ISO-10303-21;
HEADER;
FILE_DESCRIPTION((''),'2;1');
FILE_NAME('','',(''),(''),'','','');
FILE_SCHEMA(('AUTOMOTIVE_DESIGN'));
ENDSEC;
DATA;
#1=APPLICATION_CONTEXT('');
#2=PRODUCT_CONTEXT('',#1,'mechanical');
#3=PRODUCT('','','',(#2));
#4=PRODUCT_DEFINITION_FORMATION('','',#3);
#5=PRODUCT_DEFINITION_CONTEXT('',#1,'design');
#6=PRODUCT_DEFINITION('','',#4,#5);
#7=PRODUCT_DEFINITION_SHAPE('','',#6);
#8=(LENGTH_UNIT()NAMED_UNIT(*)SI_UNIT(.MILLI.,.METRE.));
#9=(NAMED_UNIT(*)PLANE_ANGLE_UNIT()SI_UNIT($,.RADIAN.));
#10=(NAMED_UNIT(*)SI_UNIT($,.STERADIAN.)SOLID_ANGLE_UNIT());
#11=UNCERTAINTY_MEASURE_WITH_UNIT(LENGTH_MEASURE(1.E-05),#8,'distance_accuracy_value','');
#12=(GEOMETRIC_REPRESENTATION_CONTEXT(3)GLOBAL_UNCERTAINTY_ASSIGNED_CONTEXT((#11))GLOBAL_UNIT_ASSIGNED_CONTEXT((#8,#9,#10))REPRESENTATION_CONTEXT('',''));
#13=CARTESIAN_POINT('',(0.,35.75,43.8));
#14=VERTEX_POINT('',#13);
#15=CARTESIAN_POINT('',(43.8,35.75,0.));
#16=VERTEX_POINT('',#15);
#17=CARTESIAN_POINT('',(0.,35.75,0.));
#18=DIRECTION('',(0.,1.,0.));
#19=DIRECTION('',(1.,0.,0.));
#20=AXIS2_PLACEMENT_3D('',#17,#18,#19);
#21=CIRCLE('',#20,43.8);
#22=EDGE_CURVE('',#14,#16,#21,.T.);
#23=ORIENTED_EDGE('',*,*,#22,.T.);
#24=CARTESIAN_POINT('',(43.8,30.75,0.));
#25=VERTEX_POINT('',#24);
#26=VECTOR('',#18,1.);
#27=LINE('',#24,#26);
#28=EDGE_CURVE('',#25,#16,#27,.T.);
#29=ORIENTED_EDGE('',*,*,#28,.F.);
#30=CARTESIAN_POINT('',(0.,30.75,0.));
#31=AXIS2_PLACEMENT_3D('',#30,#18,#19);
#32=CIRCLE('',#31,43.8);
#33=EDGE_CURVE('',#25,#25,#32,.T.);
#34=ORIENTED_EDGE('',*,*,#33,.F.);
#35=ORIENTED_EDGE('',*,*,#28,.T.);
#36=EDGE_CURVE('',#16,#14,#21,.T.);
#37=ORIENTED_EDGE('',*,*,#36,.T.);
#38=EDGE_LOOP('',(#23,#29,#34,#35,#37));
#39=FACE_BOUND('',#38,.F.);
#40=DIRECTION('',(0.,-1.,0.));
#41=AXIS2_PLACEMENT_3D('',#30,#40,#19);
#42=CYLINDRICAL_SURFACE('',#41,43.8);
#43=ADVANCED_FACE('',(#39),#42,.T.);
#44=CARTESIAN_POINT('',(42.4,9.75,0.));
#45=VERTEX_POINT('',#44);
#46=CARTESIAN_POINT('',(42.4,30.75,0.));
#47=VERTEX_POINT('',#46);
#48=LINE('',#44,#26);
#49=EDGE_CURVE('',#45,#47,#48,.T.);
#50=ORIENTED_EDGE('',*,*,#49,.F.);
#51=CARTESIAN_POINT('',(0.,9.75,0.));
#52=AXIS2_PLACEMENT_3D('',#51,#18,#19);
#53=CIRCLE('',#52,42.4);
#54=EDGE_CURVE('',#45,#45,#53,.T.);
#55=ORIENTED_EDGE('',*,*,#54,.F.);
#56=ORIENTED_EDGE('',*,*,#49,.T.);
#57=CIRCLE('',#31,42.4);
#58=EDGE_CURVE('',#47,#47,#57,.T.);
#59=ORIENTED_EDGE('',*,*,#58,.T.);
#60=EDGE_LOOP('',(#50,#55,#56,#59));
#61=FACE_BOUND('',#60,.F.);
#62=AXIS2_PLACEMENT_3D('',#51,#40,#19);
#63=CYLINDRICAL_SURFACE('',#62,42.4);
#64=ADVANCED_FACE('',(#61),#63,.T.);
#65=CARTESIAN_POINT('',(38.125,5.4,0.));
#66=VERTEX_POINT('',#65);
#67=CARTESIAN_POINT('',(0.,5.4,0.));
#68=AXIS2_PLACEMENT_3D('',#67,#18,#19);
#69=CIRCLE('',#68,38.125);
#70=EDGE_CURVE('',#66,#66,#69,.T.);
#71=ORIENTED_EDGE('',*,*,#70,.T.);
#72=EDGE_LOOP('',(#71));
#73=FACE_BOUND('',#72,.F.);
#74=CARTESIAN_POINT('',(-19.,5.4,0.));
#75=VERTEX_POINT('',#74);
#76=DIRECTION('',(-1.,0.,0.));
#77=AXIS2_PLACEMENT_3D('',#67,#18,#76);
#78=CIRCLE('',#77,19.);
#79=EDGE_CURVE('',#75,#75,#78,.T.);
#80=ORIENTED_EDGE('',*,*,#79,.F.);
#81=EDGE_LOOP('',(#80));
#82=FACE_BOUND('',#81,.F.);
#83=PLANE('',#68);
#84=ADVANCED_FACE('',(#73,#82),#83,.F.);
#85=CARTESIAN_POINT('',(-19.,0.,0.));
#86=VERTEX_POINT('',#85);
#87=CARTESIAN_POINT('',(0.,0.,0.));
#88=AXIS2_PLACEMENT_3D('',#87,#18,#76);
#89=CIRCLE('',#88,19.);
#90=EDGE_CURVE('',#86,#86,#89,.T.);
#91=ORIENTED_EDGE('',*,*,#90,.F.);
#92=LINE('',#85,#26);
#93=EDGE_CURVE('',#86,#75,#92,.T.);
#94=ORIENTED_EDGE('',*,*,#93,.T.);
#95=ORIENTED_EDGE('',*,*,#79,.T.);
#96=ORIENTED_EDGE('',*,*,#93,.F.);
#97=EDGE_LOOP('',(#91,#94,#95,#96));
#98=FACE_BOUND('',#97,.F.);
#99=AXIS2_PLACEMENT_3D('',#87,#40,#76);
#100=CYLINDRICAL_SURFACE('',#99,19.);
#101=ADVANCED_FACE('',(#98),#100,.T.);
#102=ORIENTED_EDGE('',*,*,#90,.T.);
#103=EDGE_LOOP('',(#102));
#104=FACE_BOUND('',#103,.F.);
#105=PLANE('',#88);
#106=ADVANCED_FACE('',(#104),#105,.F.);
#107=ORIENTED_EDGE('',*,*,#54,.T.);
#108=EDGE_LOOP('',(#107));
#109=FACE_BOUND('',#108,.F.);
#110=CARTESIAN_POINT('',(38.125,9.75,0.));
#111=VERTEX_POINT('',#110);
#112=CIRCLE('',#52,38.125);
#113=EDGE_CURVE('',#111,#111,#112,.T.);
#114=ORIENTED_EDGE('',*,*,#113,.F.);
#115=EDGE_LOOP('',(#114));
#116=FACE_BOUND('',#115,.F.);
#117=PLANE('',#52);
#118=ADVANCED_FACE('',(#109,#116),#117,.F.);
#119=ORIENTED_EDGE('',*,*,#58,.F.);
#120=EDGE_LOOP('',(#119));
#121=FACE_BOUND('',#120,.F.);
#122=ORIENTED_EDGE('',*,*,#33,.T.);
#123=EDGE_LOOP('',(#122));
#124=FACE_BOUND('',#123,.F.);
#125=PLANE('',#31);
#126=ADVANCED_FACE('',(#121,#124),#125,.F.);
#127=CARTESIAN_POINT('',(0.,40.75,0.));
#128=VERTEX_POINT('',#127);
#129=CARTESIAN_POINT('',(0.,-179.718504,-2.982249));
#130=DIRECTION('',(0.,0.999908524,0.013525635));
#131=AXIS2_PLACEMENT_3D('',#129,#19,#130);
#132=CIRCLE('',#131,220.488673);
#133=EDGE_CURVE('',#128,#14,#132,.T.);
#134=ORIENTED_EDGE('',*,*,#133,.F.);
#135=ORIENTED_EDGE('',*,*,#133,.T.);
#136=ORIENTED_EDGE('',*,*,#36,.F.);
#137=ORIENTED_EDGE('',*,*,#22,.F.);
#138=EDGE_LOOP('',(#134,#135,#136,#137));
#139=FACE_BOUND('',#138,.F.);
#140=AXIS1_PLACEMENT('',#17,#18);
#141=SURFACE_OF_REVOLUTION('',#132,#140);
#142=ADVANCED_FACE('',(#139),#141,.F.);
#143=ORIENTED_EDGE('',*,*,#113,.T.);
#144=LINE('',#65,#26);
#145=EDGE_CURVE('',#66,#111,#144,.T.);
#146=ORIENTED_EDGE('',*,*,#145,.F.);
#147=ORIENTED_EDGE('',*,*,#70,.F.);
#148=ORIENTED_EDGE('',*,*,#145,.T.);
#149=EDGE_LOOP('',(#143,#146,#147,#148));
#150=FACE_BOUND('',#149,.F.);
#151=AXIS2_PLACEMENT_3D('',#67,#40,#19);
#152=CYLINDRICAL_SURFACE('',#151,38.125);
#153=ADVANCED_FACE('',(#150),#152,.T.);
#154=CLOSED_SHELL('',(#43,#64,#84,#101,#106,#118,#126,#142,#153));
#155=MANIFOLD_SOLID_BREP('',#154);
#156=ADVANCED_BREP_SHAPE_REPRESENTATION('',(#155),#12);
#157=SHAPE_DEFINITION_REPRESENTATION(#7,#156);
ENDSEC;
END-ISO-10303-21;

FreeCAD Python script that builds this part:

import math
import FreeCAD as App
import Part
import Sketcher
from FreeCAD import Vector
Q = App.Units.Quantity

doc = App.newDocument("Part")
params = doc.addObject("Spreadsheet::Sheet", "Params")
for row, (alias, value) in enumerate([
    ("sketch1_diameter", "38 mm"),
    ("pad1_length", "5.4 mm"),
    ("sketch2_diameter", "76.25 mm"),
    ("pad2_length", "4.35 mm"),
    ("sketch3_diameter", "84.8 mm"),
    ("pad3_length", "21 mm"),
    ("sketch4_diameter", "87.6 mm"),
    ("pad4_length", "5 mm"),
    ("sketch5_width", "5 mm"),
    ("sketch5_height", "43.8 mm"),
    ("revolution_angle", "360 deg"),
], start=1):
    params.set(f"A{row}", alias)
    params.set(f"B{row}", "=" + value)
    params.setAlias(f"B{row}", alias)

body = doc.addObject("PartDesign::Body", "Body")

# Sketch on XZ plane
sketch1 = body.newObject("Sketcher::SketchObject", "Sketch")
sketch1.AttachmentSupport = (doc.getObject("XZ_Plane"), [""])
sketch1.MapMode = "FlatFace"
sketch1.addGeometry(Part.Circle(Vector(0, 0, 0), Vector(0, 0, 1), 19), False)
sketch1.addConstraint([
    Sketcher.Constraint("Coincident", 0, 3, -1, 1),
    Sketcher.Constraint("Diameter", 0, Q("38 mm")),
])
sketch1.setExpression("Constraints[1]", "Params.sketch1_diameter")
pad1 = body.newObject("PartDesign::Pad", "Pad")
pad1.Profile = sketch1
pad1.setExpression("Length", "Params.pad1_length")
pad1.Reversed = True

# Sketch on XZ plane
sketch2 = body.newObject("Sketcher::SketchObject", "Sketch001")
sketch2.AttachmentSupport = (doc.getObject("XZ_Plane"), [""])
sketch2.MapMode = "FlatFace"
sketch2.AttachmentOffset = App.Placement(Vector(0, 0, -5.4), App.Rotation())
sketch2.addGeometry(Part.Circle(Vector(0, 0, 0), Vector(0, 0, 1), 38), False)
sketch2.addConstraint([
    Sketcher.Constraint("Coincident", 0, 3, -1, 1),
    Sketcher.Constraint("Diameter", 0, Q("76.25 mm")),
])
sketch2.setExpression("Constraints[1]", "Params.sketch2_diameter")
pad2 = body.newObject("PartDesign::Pad", "Pad001")
pad2.Profile = sketch2
pad2.setExpression("Length", "Params.pad2_length")
pad2.Reversed = True

# Sketch on XZ plane
sketch3 = body.newObject("Sketcher::SketchObject", "Sketch002")
sketch3.AttachmentSupport = (doc.getObject("XZ_Plane"), [""])
sketch3.MapMode = "FlatFace"
sketch3.AttachmentOffset = App.Placement(Vector(0, 0, -9.75), App.Rotation())
sketch3.addGeometry(Part.Circle(Vector(0, 0, 0), Vector(0, 0, 1), 42), False)
sketch3.addConstraint([
    Sketcher.Constraint("Coincident", 0, 3, -1, 1),
    Sketcher.Constraint("Diameter", 0, Q("84.8 mm")),
])
sketch3.setExpression("Constraints[1]", "Params.sketch3_diameter")
pad3 = body.newObject("PartDesign::Pad", "Pad002")
pad3.Profile = sketch3
pad3.setExpression("Length", "Params.pad3_length")
pad3.Reversed = True

# Sketch on XZ plane
sketch4 = body.newObject("Sketcher::SketchObject", "Sketch003")
sketch4.AttachmentSupport = (doc.getObject("XZ_Plane"), [""])
sketch4.MapMode = "FlatFace"
sketch4.AttachmentOffset = App.Placement(Vector(0, 0, -30.75), App.Rotation())
sketch4.addGeometry(Part.Circle(Vector(0, 0, 0), Vector(0, 0, 1), 44), False)
sketch4.addConstraint([
    Sketcher.Constraint("Coincident", 0, 3, -1, 1),
    Sketcher.Constraint("Diameter", 0, Q("87.6 mm")),
])
sketch4.setExpression("Constraints[1]", "Params.sketch4_diameter")
pad4 = body.newObject("PartDesign::Pad", "Pad003")
pad4.Profile = sketch4
pad4.setExpression("Length", "Params.pad4_length")
pad4.Reversed = True

# Sketch on YZ plane
sketch5 = body.newObject("Sketcher::SketchObject", "Sketch004")
sketch5.AttachmentSupport = (doc.getObject("YZ_Plane"), [""])
sketch5.MapMode = "FlatFace"
sketch5.addGeometry([
    Part.LineSegment(Vector(36, 44, 0), Vector(36, 0, 0)),
    Part.LineSegment(Vector(36, 0, 0), Vector(41, 0, 0)),
    Part.ArcOfCircle(Part.Circle(Vector(-180, -3, 0), Vector(0, 0, 1), 220), math.radians(0.77), math.radians(12.25)),
], False)
sketch5.addConstraint([
    Sketcher.Constraint("Coincident", 0, 2, 1, 1),
    Sketcher.Constraint("Coincident", 1, 2, 2, 1),
    Sketcher.Constraint("Coincident", 2, 2, 0, 1),
    Sketcher.Constraint("Vertical", 0),
    Sketcher.Constraint("Horizontal", 1),
    Sketcher.Constraint("PointOnObject", 0, 2, -1),
    Sketcher.Constraint("DistanceX", 1, 1, 1, 2, Q("5 mm")),
    Sketcher.Constraint("DistanceY", 0, 2, 0, 1, Q("43.8 mm")),
    Sketcher.Constraint("Radius", 2, Q("220.4895 mm")),
    Sketcher.Constraint("DistanceX", -1, 1, 0, 2, Q("35.75 mm")),
])
sketch5.setExpression("Constraints[6]", "Params.sketch5_width")
sketch5.setExpression("Constraints[7]", "Params.sketch5_height")
revolution = body.newObject("PartDesign::Revolution", "Revolution")
revolution.Profile = sketch5
revolution.ReferenceAxis = (sketch5, ["H_Axis"])
revolution.setExpression("Angle", "Params.revolution_angle")

doc.recompute()
